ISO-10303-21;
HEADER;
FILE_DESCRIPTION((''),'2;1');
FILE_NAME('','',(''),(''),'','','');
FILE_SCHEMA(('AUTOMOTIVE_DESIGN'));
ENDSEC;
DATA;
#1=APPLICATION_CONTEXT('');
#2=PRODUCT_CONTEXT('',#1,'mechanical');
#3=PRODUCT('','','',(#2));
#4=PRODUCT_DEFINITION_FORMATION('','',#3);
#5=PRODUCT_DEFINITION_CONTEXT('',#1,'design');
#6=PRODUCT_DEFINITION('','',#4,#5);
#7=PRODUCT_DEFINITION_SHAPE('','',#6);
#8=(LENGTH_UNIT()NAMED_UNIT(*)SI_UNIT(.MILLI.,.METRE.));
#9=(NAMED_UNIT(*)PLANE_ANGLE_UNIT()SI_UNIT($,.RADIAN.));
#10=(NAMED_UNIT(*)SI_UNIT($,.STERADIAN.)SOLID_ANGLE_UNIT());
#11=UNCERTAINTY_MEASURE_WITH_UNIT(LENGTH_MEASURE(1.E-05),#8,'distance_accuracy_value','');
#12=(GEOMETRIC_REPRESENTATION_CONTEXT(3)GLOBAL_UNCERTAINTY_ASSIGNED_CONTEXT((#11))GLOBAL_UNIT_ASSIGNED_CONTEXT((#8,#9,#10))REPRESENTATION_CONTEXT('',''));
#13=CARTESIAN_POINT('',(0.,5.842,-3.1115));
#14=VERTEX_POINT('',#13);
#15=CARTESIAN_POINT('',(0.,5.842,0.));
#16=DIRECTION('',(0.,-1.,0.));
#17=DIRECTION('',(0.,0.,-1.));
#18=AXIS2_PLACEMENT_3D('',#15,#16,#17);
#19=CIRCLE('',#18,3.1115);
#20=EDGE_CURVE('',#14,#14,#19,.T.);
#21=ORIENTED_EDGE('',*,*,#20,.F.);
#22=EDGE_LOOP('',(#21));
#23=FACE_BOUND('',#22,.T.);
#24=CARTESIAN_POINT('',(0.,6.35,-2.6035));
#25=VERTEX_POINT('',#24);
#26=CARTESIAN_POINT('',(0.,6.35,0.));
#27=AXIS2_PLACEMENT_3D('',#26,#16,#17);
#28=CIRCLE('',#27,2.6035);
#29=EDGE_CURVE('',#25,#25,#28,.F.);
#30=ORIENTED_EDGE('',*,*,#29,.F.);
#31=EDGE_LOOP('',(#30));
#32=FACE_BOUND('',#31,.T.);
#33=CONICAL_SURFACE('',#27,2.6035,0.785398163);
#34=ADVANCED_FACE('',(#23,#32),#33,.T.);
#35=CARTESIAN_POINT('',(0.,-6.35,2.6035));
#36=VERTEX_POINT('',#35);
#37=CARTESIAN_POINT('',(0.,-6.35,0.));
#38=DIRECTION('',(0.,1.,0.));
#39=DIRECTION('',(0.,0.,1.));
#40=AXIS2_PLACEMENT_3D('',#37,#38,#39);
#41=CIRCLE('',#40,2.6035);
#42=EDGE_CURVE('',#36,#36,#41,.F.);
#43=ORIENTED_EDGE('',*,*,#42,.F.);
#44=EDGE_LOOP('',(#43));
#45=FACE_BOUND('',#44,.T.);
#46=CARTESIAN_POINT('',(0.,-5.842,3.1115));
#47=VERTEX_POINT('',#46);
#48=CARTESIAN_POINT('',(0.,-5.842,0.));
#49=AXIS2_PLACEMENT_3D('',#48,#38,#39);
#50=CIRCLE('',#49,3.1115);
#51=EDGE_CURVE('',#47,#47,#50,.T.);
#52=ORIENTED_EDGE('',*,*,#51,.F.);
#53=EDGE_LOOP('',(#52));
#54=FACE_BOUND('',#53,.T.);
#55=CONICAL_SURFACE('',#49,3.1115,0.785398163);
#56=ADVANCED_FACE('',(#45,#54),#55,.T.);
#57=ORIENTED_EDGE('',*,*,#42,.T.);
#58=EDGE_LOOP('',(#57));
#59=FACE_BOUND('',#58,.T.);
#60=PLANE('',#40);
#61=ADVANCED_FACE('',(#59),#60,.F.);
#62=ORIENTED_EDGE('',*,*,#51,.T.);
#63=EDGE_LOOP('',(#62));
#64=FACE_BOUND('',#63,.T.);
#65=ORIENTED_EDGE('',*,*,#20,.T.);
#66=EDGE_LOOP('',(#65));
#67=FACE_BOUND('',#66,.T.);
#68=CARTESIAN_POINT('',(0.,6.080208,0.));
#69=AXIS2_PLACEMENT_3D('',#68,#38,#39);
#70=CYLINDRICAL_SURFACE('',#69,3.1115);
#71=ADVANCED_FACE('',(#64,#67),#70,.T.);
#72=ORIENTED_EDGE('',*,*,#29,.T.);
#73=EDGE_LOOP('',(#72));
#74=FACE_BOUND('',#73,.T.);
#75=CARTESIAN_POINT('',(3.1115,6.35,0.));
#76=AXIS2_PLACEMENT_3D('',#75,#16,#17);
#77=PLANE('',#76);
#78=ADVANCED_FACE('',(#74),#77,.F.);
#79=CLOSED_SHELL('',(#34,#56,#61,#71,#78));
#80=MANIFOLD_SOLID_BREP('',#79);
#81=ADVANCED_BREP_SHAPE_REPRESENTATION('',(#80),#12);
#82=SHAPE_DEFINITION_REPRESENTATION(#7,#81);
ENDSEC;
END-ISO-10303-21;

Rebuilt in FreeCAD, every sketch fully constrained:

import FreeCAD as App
import Part
import Sketcher
Q = App.Units.Quantity


def edges_at(feature, points):
    """Names of the edges that pass closest to the given points."""
    edges = feature.Shape.Edges
    near = lambda p: min(range(len(edges)), key=lambda i: edges[i].distToShape(Part.Vertex(*p))[0])
    return sorted({f"Edge{near(p) + 1}" for p in points})

doc = App.newDocument("Part")
body = doc.addObject("PartDesign::Body", "Body")

# Sketch on XY plane
sketch1 = body.newObject("Sketcher::SketchObject", "Sketch")
sketch1.AttachmentSupport = (doc.getObject("XY_Plane"), [""])
sketch1.MapMode = "FlatFace"
sketch1.addGeometry(Part.LineSegment(App.Vector(0, 6.3, 0), App.Vector(0, -6.3, 0)), False)
sketch1.addGeometry(Part.LineSegment(App.Vector(0, -6.3, 0), App.Vector(3.1, -6.3, 0)), False)
sketch1.addGeometry(Part.LineSegment(App.Vector(3.1, -6.3, 0), App.Vector(3.1, 6.3, 0)), False)
sketch1.addGeometry(Part.LineSegment(App.Vector(3.1, 6.3, 0), App.Vector(0, 6.3, 0)), False)
sketch1.addConstraint(Sketcher.Constraint("Coincident", 0, 2, 1, 1))
sketch1.addConstraint(Sketcher.Constraint("Coincident", 1, 2, 2, 1))
sketch1.addConstraint(Sketcher.Constraint("Coincident", 2, 2, 3, 1))
sketch1.addConstraint(Sketcher.Constraint("Coincident", 3, 2, 0, 1))
sketch1.addConstraint(Sketcher.Constraint("Vertical", 0))
sketch1.addConstraint(Sketcher.Constraint("Horizontal", 1))
sketch1.addConstraint(Sketcher.Constraint("Vertical", 2))
sketch1.addConstraint(Sketcher.Constraint("Horizontal", 3))
sketch1.addConstraint(Sketcher.Constraint("Symmetric", 0, 2, 3, 2, -1, 1))
sketch1.addConstraint(Sketcher.Constraint("DistanceY", 0, 2, 0, 1, Q("0.5 in")))
sketch1.addConstraint(Sketcher.Constraint("DistanceX", 1, 1, 1, 2, Q("0.1225 in")))
revolution = body.newObject("PartDesign::Revolution", "Revolution")
revolution.Profile = sketch1
revolution.ReferenceAxis = (sketch1, ["V_Axis"])
revolution.Angle = 360
doc.recompute()

chamfer = body.newObject("PartDesign::Chamfer", "Chamfer")
chamfer.Base = (revolution, edges_at(revolution, [(-3.111, 6.35, 0), (-3.111, -6.35, 0)]))
chamfer.Size = Q("0.02 in")

doc.recompute()
